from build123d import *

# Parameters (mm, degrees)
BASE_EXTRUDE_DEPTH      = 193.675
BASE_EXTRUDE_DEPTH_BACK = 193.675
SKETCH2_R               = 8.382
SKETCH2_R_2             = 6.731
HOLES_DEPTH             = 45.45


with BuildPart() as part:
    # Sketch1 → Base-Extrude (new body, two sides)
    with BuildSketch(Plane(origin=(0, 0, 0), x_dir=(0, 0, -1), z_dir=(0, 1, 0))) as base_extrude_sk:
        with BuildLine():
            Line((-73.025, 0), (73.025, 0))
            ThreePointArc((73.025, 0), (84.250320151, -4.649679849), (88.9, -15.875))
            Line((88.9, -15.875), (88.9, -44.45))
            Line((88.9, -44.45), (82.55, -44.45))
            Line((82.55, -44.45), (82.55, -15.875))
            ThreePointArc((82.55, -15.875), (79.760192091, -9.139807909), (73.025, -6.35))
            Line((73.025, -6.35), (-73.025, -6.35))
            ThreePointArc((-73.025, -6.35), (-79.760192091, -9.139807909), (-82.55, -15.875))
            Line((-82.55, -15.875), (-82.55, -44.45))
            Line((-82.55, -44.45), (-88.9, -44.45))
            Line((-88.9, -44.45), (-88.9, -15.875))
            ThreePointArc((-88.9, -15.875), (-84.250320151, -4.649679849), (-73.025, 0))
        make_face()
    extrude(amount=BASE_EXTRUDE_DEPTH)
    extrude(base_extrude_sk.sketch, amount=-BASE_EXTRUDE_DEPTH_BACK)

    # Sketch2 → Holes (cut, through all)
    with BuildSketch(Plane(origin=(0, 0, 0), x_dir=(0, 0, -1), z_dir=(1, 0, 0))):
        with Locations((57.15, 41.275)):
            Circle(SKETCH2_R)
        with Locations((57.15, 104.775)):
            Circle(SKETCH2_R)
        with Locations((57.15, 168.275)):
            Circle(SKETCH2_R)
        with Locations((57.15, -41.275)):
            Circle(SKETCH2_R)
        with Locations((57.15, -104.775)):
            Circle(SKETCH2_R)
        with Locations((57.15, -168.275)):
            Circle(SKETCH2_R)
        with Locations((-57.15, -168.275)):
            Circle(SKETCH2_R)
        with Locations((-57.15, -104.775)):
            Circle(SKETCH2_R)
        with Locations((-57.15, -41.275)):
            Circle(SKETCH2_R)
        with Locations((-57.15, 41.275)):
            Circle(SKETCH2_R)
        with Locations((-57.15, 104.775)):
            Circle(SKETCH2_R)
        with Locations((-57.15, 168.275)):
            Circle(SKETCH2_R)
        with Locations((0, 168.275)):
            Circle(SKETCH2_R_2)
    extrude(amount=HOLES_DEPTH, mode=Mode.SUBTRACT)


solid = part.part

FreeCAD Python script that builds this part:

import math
import FreeCAD as App
import Part
import Sketcher
from FreeCAD import Vector
Q = App.Units.Quantity

doc = App.newDocument("Part")
body = doc.addObject("PartDesign::Body", "Body")

# Sketch on XZ plane
sketch1 = body.newObject("Sketcher::SketchObject", "Sketch")
sketch1.AttachmentSupport = (doc.getObject("XZ_Plane"), [""])
sketch1.MapMode = "FlatFace"
sketch1.addGeometry([
    Part.LineSegment(Vector(0, -73, 0), Vector(0, 73, 0)),  # 0
    Part.ArcOfCircle(Part.Circle(Vector(16, 73, 0), Vector(0, 0, 1), 16), math.radians(90), math.radians(180)),  # 1
    Part.LineSegment(Vector(16, 89, 0), Vector(44, 89, 0)),  # 2
    Part.LineSegment(Vector(44, 89, 0), Vector(44, 83, 0)),  # 3
    Part.LineSegment(Vector(44, 83, 0), Vector(16, 83, 0)),  # 4
    Part.ArcOfCircle(Part.Circle(Vector(16, 73, 0), Vector(0, 0, 1), 10), math.radians(90), math.radians(180)),  # 5
    Part.LineSegment(Vector(6, 73, 0), Vector(6, -73, 0)),  # 6
    Part.ArcOfCircle(Part.Circle(Vector(16, -73, 0), Vector(0, 0, 1), 10), math.radians(180), math.radians(270)),  # 7
    Part.LineSegment(Vector(16, -83, 0), Vector(44, -83, 0)),  # 8
    Part.LineSegment(Vector(44, -83, 0), Vector(44, -89, 0)),  # 9
    Part.LineSegment(Vector(44, -89, 0), Vector(16, -89, 0)),  # 10
    Part.ArcOfCircle(Part.Circle(Vector(16, -73, 0), Vector(0, 0, 1), 16), math.radians(-180), math.radians(-90)),  # 11
], False)
sketch1.addConstraint([
    Sketcher.Constraint("Tangent", 0, 2, 1, 2),
    Sketcher.Constraint("Tangent", 1, 1, 2, 1),
    Sketcher.Constraint("Coincident", 2, 2, 3, 1),
    Sketcher.Constraint("Coincident", 3, 2, 4, 1),
    Sketcher.Constraint("Tangent", 4, 2, 5, 1),
    Sketcher.Constraint("Tangent", 5, 2, 6, 1),
    Sketcher.Constraint("Tangent", 6, 2, 7, 1),
    Sketcher.Constraint("Tangent", 7, 2, 8, 1),
    Sketcher.Constraint("Coincident", 8, 2, 9, 1),
    Sketcher.Constraint("Coincident", 9, 2, 10, 1),
    Sketcher.Constraint("Tangent", 10, 2, 11, 2),
    Sketcher.Constraint("Tangent", 11, 1, 0, 1),
    Sketcher.Constraint("Vertical", 0),
    Sketcher.Constraint("Horizontal", 2),
    Sketcher.Constraint("Vertical", 3),
    Sketcher.Constraint("Horizontal", 4),
    Sketcher.Constraint("Vertical", 6),
    Sketcher.Constraint("Horizontal", 8),
    Sketcher.Constraint("Vertical", 9),
    Sketcher.Constraint("Horizontal", 10),
    Sketcher.Constraint("Coincident", 5, 3, 1, 3),
    Sketcher.Constraint("Coincident", 11, 3, 7, 3),
    Sketcher.Constraint("Equal", 5, 7),
    Sketcher.Constraint("Symmetric", 0, 2, 11, 1, -1, 1),
    Sketcher.Constraint("Vertical", 3, 2, 8, 2),
    Sketcher.Constraint("Radius", 1, Q("0.625 in")),
    Sketcher.Constraint("Radius", 5, Q("0.375 in")),
    Sketcher.Constraint("DistanceY", 0, 1, 0, 2, Q("5.75 in")),
    Sketcher.Constraint("DistanceX", 6, 2, 8, 2, Q("1.5 in")),
])
pad1 = body.newObject("PartDesign::Pad", "Pad")
pad1.Profile = sketch1
pad1.Type = "TwoLengths"
pad1.Length = Q("7.625 in")
pad1.Length2 = Q("7.625 in")
pad1.Reversed = True

# Sketch on YZ plane
sketch2 = body.newObject("Sketcher::SketchObject", "Sketch001")
sketch2.AttachmentSupport = (doc.getObject("YZ_Plane"), [""])
sketch2.MapMode = "FlatFace"
sketch2.addGeometry([
    Part.Circle(Vector(41, -57, 0), Vector(0, 0, 1), 8),  # 0
    Part.Circle(Vector(105, -57, 0), Vector(0, 0, 1), 8),  # 1
    Part.Circle(Vector(168, -57, 0), Vector(0, 0, 1), 8),  # 2
    Part.Circle(Vector(-41, -57, 0), Vector(0, 0, 1), 8),  # 3
    Part.Circle(Vector(-105, -57, 0), Vector(0, 0, 1), 8),  # 4
    Part.Circle(Vector(-168, -57, 0), Vector(0, 0, 1), 8),  # 5
    Part.Circle(Vector(-168, 57, 0), Vector(0, 0, 1), 8),  # 6
    Part.Circle(Vector(-105, 57, 0), Vector(0, 0, 1), 8),  # 7
    Part.Circle(Vector(-41, 57, 0), Vector(0, 0, 1), 8),  # 8
    Part.Circle(Vector(41, 57, 0), Vector(0, 0, 1), 8),  # 9
    Part.Circle(Vector(105, 57, 0), Vector(0, 0, 1), 8),  # 10
    Part.Circle(Vector(168, 57, 0), Vector(0, 0, 1), 8),  # 11
    Part.Circle(Vector(168, 0, 0), Vector(0, 0, 1), 7),  # 12
], False)
sketch2.addConstraint([
    Sketcher.Constraint("Equal", 0, 1),
    Sketcher.Constraint("Equal", 1, 2),
    Sketcher.Constraint("Equal", 2, 3),
    Sketcher.Constraint("Equal", 3, 4),
    Sketcher.Constraint("Equal", 4, 5),
    Sketcher.Constraint("Equal", 5, 6),
    Sketcher.Constraint("Equal", 6, 7),
    Sketcher.Constraint("Equal", 7, 8),
    Sketcher.Constraint("Equal", 8, 9),
    Sketcher.Constraint("Equal", 9, 10),
    Sketcher.Constraint("Equal", 10, 11),
    Sketcher.Constraint("Symmetric", 2, 3, 6, 3, -1, 1),
    Sketcher.Constraint("Symmetric", 1, 3, 7, 3, -1, 1),
    Sketcher.Constraint("Symmetric", 0, 3, 8, 3, -1, 1),
    Sketcher.Constraint("Symmetric", 3, 3, 9, 3, -1, 1),
    Sketcher.Constraint("Symmetric", 4, 3, 10, 3, -1, 1),
    Sketcher.Constraint("Symmetric", 5, 3, 11, 3, -1, 1),
    Sketcher.Constraint("Symmetric", 0, 3, 3, 3, -2),
    Sketcher.Constraint("Symmetric", 1, 3, 4, 3, -2),
    Sketcher.Constraint("Symmetric", 2, 3, 5, 3, -2),
    Sketcher.Constraint("PointOnObject", 12, 3, -1),
    Sketcher.Constraint("Horizontal", 0, 3, 1, 3),
    Sketcher.Constraint("Horizontal", 1, 3, 2, 3),
    Sketcher.Constraint("Vertical", 11, 3, 12, 3),
    Sketcher.Constraint("Diameter", 0, Q("0.66 in")),
    Sketcher.Constraint("Diameter", 12, Q("0.53 in")),
    Sketcher.Constraint("DistanceX", 0, 3, 2, 3, Q("5 in")),
    Sketcher.Constraint("DistanceX", 0, 3, 1, 3, Q("2.5 in")),
    Sketcher.Constraint("DistanceY", 5, 3, 6, 3, Q("4.5 in")),
    Sketcher.Constraint("DistanceX", 3, 3, 0, 3, Q("3.25 in")),
])
pocket1 = body.newObject("PartDesign::Pocket", "Pocket")
pocket1.Profile = sketch2
pocket1.Type = "ThroughAll"
pocket1.Reversed = True

doc.recompute()
